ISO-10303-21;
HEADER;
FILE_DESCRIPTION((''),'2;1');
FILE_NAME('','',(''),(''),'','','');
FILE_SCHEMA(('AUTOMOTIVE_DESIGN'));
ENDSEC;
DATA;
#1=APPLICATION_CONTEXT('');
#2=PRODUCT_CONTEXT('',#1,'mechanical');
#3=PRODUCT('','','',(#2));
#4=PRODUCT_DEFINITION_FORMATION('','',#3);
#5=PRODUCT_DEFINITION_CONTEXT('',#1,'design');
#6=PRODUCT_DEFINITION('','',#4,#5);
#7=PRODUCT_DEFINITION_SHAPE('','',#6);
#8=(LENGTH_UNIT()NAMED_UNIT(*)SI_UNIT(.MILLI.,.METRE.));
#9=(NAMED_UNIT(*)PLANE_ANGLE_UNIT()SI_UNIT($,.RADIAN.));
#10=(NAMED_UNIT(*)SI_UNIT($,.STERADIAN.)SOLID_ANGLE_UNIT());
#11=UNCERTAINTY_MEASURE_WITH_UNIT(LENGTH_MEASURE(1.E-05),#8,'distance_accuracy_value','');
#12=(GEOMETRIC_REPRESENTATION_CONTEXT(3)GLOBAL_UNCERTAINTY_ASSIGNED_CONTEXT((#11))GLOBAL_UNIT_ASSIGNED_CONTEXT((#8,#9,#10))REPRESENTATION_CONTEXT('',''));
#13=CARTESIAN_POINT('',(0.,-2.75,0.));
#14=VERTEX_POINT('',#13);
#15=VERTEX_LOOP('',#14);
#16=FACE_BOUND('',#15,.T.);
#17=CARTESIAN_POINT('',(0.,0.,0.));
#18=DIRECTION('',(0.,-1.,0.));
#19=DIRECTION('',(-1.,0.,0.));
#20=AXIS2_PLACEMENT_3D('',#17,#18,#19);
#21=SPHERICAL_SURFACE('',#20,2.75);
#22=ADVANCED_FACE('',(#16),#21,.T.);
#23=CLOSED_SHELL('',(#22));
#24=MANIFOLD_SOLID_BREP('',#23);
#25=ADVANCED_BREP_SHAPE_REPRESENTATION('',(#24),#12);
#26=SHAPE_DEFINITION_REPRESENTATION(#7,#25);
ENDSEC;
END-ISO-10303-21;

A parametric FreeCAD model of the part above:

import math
import FreeCAD as App
import Part
import Sketcher
from FreeCAD import Vector
Q = App.Units.Quantity

doc = App.newDocument("Part")
body = doc.addObject("PartDesign::Body", "Body")

# Sketch on XY plane
sketch1 = body.newObject("Sketcher::SketchObject", "Sketch")
sketch1.AttachmentSupport = (doc.getObject("XY_Plane"), [""])
sketch1.MapMode = "FlatFace"
sketch1.addGeometry(Part.LineSegment(Vector(0, -2.8, 0), Vector(0, 2.8, 0)), False)
sketch1.addGeometry(Part.ArcOfCircle(Part.Circle(Vector(0, 0, 0), Vector(0, 0, 1), 2.8), math.radians(90), math.radians(270)), False)
sketch1.addConstraint(Sketcher.Constraint("Coincident", 0, 1, 1, 2))
sketch1.addConstraint(Sketcher.Constraint("Coincident", 1, 1, 0, 2))
sketch1.addConstraint(Sketcher.Constraint("Vertical", 0))
sketch1.addConstraint(Sketcher.Constraint("Coincident", 1, 3, -1, 1))
sketch1.addConstraint(Sketcher.Constraint("PointOnObject", 0, 1, -2))
sketch1.addConstraint(Sketcher.Constraint("Radius", 1, Q("2.75 mm")))
revolution = body.newObject("PartDesign::Revolution", "Revolution")
revolution.Profile = sketch1
revolution.ReferenceAxis = (sketch1, ["V_Axis"])
revolution.Angle = 360

doc.recompute()
